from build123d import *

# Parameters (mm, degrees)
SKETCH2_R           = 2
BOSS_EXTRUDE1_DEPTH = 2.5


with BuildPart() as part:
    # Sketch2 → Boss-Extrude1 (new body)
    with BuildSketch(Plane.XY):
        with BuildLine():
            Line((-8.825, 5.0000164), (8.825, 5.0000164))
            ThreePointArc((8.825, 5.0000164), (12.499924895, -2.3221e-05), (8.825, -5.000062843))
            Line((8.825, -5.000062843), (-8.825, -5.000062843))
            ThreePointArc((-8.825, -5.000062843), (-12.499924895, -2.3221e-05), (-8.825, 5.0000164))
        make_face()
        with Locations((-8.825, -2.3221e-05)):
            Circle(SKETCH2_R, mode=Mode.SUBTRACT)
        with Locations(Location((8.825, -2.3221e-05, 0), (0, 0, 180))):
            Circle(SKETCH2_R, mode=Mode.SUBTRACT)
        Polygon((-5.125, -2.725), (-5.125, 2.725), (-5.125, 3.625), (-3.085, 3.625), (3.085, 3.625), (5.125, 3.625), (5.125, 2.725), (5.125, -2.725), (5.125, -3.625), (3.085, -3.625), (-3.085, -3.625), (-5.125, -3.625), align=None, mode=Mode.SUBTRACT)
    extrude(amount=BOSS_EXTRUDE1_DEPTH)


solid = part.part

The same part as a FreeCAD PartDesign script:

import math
import FreeCAD as App
import Part
import Sketcher
from FreeCAD import Vector
Q = App.Units.Quantity


def add_polygon(sketch, points):
    """Adds a closed chain of lines whose ends are joined by coincident constraints."""
    first, n = sketch.GeometryCount, len(points)
    for a, b in zip(points, points[1:] + points[:1]):
        sketch.addGeometry(Part.LineSegment(App.Vector(*a, 0), App.Vector(*b, 0)), False)
    for i in range(n):
        sketch.addConstraint(Sketcher.Constraint("Coincident", first + i, 2, first + (i + 1) % n, 1))

doc = App.newDocument("Part")
body = doc.addObject("PartDesign::Body", "Body")

# Sketch on XY plane
sketch1 = body.newObject("Sketcher::SketchObject", "Sketch")
sketch1.AttachmentSupport = (doc.getObject("XY_Plane"), [""])
sketch1.MapMode = "FlatFace"
sketch1.addGeometry(Part.LineSegment(Vector(8.8, 5, 0), Vector(-8.8, 5, 0)), False)  # 0
sketch1.addGeometry(Part.ArcOfCircle(Part.Circle(Vector(-7.3, 0, 0), Vector(0, 0, 1), 5.2), math.radians(107), math.radians(253)), False)  # 1
sketch1.addGeometry(Part.LineSegment(Vector(-8.8, -5, 0), Vector(8.8, -5, 0)), False)  # 2
sketch1.addGeometry(Part.ArcOfCircle(Part.Circle(Vector(7.3, 0, 0), Vector(0, 0, 1), 5.2), math.radians(-73), math.radians(73)), False)  # 3
sketch1.addGeometry(Part.Circle(Vector(8.8, 0, 0), Vector(0, 0, 1), 2), False)  # 4
sketch1.addGeometry(Part.Circle(Vector(-8.8, 0, 0), Vector(0, 0, 1), 2), False)  # 5
add_polygon(sketch1, [(-5.1, 3.6), (5.1, 3.6), (5.1, -3.6), (-5.1, -3.6)])  # lines 6-9
sketch1.addConstraint(Sketcher.Constraint("Coincident", 0, 2, 1, 1))
sketch1.addConstraint(Sketcher.Constraint("Coincident", 1, 2, 2, 1))
sketch1.addConstraint(Sketcher.Constraint("Coincident", 2, 2, 3, 1))
sketch1.addConstraint(Sketcher.Constraint("Coincident", 3, 2, 0, 1))
sketch1.addConstraint(Sketcher.Constraint("Horizontal", 0))
sketch1.addConstraint(Sketcher.Constraint("Horizontal", 2))
sketch1.addConstraint(Sketcher.Constraint("Horizontal", 6))
sketch1.addConstraint(Sketcher.Constraint("Vertical", 7))
sketch1.addConstraint(Sketcher.Constraint("Horizontal", 8))
sketch1.addConstraint(Sketcher.Constraint("Vertical", 9))
sketch1.addConstraint(Sketcher.Constraint("Equal", 1, 3))
sketch1.addConstraint(Sketcher.Constraint("Equal", 4, 5))
sketch1.addConstraint(Sketcher.Constraint("Symmetric", 6, 2, 8, 2, -1, 1))
sketch1.addConstraint(Sketcher.Constraint("Symmetric", 1, 3, 3, 3, -2))
sketch1.addConstraint(Sketcher.Constraint("Symmetric", 4, 3, 5, 3, -2))
sketch1.addConstraint(Sketcher.Constraint("Horizontal", 3, 3, 4, 3))
sketch1.addConstraint(Sketcher.Constraint("Vertical", 5, 3, 0, 2))
sketch1.addConstraint(Sketcher.Constraint("Vertical", 0, 2, 1, 2))
sketch1.addConstraint(Sketcher.Constraint("Diameter", 4, Q("4 mm")))
sketch1.addConstraint(Sketcher.Constraint("DistanceX", 0, 2, 0, 1, Q("17.65 mm")))
sketch1.addConstraint(Sketcher.Constraint("DistanceX", 6, 1, 6, 2, Q("10.25 mm")))
sketch1.addConstraint(Sketcher.Constraint("DistanceY", 7, 2, 7, 1, Q("7.25 mm")))
sketch1.addConstraint(Sketcher.Constraint("Radius", 1, Q("5.238946 mm")))
sketch1.addConstraint(Sketcher.Constraint("DistanceX", 1, 3, -1, 1, Q("7.260978 mm")))
sketch1.addConstraint(Sketcher.Constraint("DistanceY", -1, 1, 0, 2, Q("5.000016 mm")))
pad1 = body.newObject("PartDesign::Pad", "Pad")
pad1.Profile = sketch1
pad1.Length = 2.5

doc.recompute()
